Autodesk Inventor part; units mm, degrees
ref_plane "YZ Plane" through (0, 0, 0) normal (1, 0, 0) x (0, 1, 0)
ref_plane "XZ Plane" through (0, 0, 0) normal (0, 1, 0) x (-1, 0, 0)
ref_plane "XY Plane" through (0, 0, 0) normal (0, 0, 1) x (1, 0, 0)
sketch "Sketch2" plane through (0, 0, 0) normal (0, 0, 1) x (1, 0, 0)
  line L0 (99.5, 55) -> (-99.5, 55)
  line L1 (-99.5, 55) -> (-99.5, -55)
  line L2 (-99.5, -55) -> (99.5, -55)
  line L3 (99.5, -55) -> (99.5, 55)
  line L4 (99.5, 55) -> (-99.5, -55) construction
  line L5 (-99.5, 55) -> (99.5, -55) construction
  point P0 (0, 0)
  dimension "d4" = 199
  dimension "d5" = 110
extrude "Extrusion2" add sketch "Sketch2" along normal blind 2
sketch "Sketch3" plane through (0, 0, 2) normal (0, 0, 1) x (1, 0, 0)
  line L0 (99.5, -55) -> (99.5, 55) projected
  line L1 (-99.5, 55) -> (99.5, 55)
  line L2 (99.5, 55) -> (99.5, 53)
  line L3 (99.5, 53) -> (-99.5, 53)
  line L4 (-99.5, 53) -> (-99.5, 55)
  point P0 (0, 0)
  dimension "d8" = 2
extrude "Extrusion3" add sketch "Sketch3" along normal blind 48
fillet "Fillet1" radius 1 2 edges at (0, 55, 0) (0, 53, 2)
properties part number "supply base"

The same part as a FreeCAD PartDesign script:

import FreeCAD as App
import Part
import Sketcher

V = App.Vector
Q = App.Units.Quantity


def edges_at(feature, points):
    """Names of the edges that pass closest to the given points."""
    edges = feature.Shape.Edges
    near = lambda p: min(range(len(edges)), key=lambda i: edges[i].distToShape(Part.Vertex(*p))[0])
    return sorted({f"Edge{near(p) + 1}" for p in points})


def add_polygon(sketch, points):
    """Adds a closed chain of lines whose ends are joined by coincident constraints."""
    first, n = sketch.GeometryCount, len(points)
    for a, b in zip(points, points[1:] + points[:1]):
        sketch.addGeometry(Part.LineSegment(App.Vector(*a, 0), App.Vector(*b, 0)), False)
    for i in range(n):
        sketch.addConstraint(Sketcher.Constraint("Coincident", first + i, 2, first + (i + 1) % n, 1))

doc = App.newDocument("Part")
body = doc.addObject("PartDesign::Body", "Body")

# Sketch on XY plane
sketch1 = body.newObject("Sketcher::SketchObject", "Sketch")
sketch1.AttachmentSupport = (doc.getObject("XY_Plane"), [""])
sketch1.MapMode = "FlatFace"
add_polygon(sketch1, [(100, -55), (100, 55), (-100, 55), (-100, -55)])  # lines 0-3
sketch1.addConstraint(Sketcher.Constraint("Vertical", 0))
sketch1.addConstraint(Sketcher.Constraint("Horizontal", 1))
sketch1.addConstraint(Sketcher.Constraint("Vertical", 2))
sketch1.addConstraint(Sketcher.Constraint("Horizontal", 3))
sketch1.addConstraint(Sketcher.Constraint("Symmetric", 0, 2, 2, 2, -1, 1))
sketch1.addConstraint(Sketcher.Constraint("DistanceX", 1, 2, 1, 1, Q("199 mm")))
sketch1.addConstraint(Sketcher.Constraint("DistanceY", 0, 1, 0, 2, Q("110 mm")))
pad1 = body.newObject("PartDesign::Pad", "Pad")
pad1.Profile = sketch1
pad1.Length = 2

# Sketch on XY plane
sketch2 = body.newObject("Sketcher::SketchObject", "Sketch001")
sketch2.AttachmentSupport = (doc.getObject("XY_Plane"), [""])
sketch2.MapMode = "FlatFace"
sketch2.AttachmentOffset = App.Placement(V(0, 0, 2), App.Rotation())
add_polygon(sketch2, [(-99.5, 53), (99.5, 53), (99.5, 55), (-99.5, 55)])  # lines 0-3
sketch2.addConstraint(Sketcher.Constraint("Horizontal", 0))
sketch2.addConstraint(Sketcher.Constraint("Vertical", 1))
sketch2.addConstraint(Sketcher.Constraint("Horizontal", 2))
sketch2.addConstraint(Sketcher.Constraint("Vertical", 3))
sketch2.addConstraint(Sketcher.Constraint("DistanceY", 1, 1, 1, 2, Q("2 mm")))
sketch2.addConstraint(Sketcher.Constraint("DistanceX", 0, 1, 0, 2, Q("199 mm")))
sketch2.addConstraint(Sketcher.Constraint("DistanceY", -1, 1, 0, 2, Q("53 mm")))
sketch2.addConstraint(Sketcher.Constraint("DistanceX", -1, 1, 0, 2, Q("99.5 mm")))
pad2 = body.newObject("PartDesign::Pad", "Pad001")
pad2.Profile = sketch2
pad2.Length = 48
doc.recompute()

fillet = body.newObject("PartDesign::Fillet", "Fillet")
fillet.Base = (pad2, edges_at(pad2, [(0, 55, 0), (0, 53, 2)]))
fillet.Radius = 1

doc.recompute()
